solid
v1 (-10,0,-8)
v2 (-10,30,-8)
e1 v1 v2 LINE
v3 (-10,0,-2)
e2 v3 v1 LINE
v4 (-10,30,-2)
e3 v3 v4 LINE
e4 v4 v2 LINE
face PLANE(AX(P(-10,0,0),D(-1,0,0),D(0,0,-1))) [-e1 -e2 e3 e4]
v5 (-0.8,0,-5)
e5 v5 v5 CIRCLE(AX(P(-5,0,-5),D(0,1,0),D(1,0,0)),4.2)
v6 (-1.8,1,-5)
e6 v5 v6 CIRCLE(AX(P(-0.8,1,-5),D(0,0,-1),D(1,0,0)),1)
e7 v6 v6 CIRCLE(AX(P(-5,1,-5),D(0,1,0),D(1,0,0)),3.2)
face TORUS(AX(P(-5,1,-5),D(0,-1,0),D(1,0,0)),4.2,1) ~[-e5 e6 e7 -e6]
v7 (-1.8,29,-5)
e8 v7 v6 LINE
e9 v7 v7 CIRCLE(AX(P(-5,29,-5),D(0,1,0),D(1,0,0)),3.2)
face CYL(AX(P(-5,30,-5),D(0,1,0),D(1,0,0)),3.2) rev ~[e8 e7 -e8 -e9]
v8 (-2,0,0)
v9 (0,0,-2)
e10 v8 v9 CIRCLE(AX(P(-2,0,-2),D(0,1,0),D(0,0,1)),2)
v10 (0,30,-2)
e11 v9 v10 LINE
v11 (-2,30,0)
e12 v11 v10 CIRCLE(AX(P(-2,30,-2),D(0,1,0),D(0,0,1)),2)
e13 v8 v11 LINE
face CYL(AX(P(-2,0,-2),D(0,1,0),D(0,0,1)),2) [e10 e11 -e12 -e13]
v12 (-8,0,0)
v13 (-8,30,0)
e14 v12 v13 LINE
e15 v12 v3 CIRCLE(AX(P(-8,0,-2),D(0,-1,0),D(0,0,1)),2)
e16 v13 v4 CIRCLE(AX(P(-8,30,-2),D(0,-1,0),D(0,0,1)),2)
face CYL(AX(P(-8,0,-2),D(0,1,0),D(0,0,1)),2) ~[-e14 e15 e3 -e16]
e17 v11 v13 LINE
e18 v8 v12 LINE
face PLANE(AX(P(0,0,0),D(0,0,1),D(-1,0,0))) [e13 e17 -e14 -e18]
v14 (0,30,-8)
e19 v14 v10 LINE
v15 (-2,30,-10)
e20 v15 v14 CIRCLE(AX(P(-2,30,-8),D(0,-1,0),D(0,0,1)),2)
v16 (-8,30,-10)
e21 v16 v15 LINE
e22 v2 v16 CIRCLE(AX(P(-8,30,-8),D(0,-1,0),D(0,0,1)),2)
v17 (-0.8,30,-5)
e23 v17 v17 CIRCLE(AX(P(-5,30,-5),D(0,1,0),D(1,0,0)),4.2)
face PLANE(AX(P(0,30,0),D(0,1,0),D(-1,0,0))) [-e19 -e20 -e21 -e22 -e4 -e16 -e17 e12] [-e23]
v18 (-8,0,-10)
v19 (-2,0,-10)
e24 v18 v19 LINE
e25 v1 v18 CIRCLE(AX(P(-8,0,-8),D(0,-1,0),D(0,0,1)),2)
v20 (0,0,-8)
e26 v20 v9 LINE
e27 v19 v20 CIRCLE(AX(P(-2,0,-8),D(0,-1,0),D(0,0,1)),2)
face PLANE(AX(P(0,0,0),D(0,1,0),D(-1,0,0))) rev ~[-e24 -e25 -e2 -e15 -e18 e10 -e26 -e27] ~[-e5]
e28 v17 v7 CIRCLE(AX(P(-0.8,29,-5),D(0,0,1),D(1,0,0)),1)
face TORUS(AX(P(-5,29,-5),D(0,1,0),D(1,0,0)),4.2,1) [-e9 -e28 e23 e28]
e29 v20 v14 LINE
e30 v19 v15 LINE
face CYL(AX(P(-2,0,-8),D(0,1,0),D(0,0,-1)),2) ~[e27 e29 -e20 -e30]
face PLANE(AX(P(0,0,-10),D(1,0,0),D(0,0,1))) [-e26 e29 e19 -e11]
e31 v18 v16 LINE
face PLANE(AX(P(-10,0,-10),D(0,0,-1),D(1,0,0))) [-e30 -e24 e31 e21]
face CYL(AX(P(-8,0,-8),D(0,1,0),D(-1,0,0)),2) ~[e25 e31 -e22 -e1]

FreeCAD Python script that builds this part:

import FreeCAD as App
import Part
import Sketcher

V = App.Vector


def edges_at(feature, points):
    """Names of the edges that pass closest to the given points."""
    edges = feature.Shape.Edges
    near = lambda p: min(range(len(edges)), key=lambda i: edges[i].distToShape(Part.Vertex(*p))[0])
    return sorted({f"Edge{near(p) + 1}" for p in points})


def add_polygon(sketch, points):
    """Adds a closed chain of lines whose ends are joined by coincident constraints."""
    first, n = sketch.GeometryCount, len(points)
    for a, b in zip(points, points[1:] + points[:1]):
        sketch.addGeometry(Part.LineSegment(App.Vector(*a, 0), App.Vector(*b, 0)), False)
    for i in range(n):
        sketch.addConstraint(Sketcher.Constraint("Coincident", first + i, 2, first + (i + 1) % n, 1))

doc = App.newDocument("Part")
body = doc.addObject("PartDesign::Body", "Body")

sketch1 = doc.addObject("Sketcher::SketchObject", "Sketch")
body.addObject(sketch1)
sketch1.AttachmentSupport = (doc.XZ_Plane, [""])
sketch1.MapMode = "FlatFace"
add_polygon(sketch1, [(-10, 0), (0, 0), (0, -10), (-10, -10)])
sketch1.addConstraint([
    Sketcher.Constraint("Horizontal", 0),
    Sketcher.Constraint("Vertical", 1),
    Sketcher.Constraint("Horizontal", 2),
    Sketcher.Constraint("Vertical", 3),
    Sketcher.Constraint("Coincident", 0, 2, -1, 1),
    Sketcher.Constraint("Equal", 2, 1),
    Sketcher.Constraint("DistanceX", 0, 1, 0, 2, 10.0),
])
pad1 = doc.addObject("PartDesign::Pad", "Pad")
body.addObject(pad1)
pad1.Profile = sketch1
pad1.Length = 30
pad1.Reversed = True
doc.recompute()

fillet = doc.addObject("PartDesign::Fillet", "Fillet")
body.addObject(fillet)
fillet.Base = (pad1, edges_at(pad1, [
    (0, 15, 0),
    (0, 15, -10),
    (-10, 15, 0),
    (-10, 15, -10),
]))
fillet.Radius = 2

sketch2 = doc.addObject("Sketcher::SketchObject", "Sketch001")
body.addObject(sketch2)
sketch2.AttachmentSupport = (doc.XZ_Plane, [""])
sketch2.MapMode = "FlatFace"
sketch2.AttachmentOffset = App.Placement(V(0, 0, -30), App.Rotation())
sketch2.addGeometry(Part.Circle(V(-5, -5, 0), V(0, 0, 1), 3.2), False)
sketch2.addConstraint([
    Sketcher.Constraint("Diameter", 0, 6.4),
    Sketcher.Constraint("DistanceX", 0, 3, -1, 1, 5.0),
    Sketcher.Constraint("DistanceY", 0, 3, -1, 1, 5.0),
])
pocket1 = doc.addObject("PartDesign::Pocket", "Pocket")
body.addObject(pocket1)
pocket1.Profile = sketch2
pocket1.Type = "ThroughAll"
pocket1.Reversed = True
doc.recompute()

fillet2 = doc.addObject("PartDesign::Fillet", "Fillet001")
body.addObject(fillet2)
fillet2.Base = (pocket1, edges_at(pocket1, [(-8.2, 30, -5), (-8.2, 0, -5)]))
fillet2.Radius = 1

doc.recompute()
